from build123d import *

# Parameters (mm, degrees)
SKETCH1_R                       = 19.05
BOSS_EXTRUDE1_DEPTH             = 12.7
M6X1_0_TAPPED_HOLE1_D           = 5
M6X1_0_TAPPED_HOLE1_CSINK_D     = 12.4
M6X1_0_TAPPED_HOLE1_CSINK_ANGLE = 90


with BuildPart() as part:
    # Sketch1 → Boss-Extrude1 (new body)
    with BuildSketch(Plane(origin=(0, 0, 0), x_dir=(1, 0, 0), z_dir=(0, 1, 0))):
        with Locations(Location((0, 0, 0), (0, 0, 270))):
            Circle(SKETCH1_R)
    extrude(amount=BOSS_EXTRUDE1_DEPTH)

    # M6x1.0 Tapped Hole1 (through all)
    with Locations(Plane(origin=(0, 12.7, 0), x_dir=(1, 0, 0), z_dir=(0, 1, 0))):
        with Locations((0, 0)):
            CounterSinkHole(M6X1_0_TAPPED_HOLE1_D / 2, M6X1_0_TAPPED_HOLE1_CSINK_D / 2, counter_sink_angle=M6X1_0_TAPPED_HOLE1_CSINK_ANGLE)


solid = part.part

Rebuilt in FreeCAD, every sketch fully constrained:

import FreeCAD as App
import Part
import Sketcher

V = App.Vector
Q = App.Units.Quantity

doc = App.newDocument("Part")
params = doc.addObject("Spreadsheet::Sheet", "Params")
for row, (alias, value) in enumerate([
    ("sketch1_diameter", "1.5 in"),
    ("pad1_length", "0.5 in"),
    ("hole_diameter", "5 mm"),
    ("hole_csink_diameter", "12.4 mm"),
], start=1):
    params.set(f"A{row}", alias)
    params.set(f"B{row}", "=" + value)
    params.setAlias(f"B{row}", alias)

body = doc.addObject("PartDesign::Body", "Body")

sketch1 = body.newObject("Sketcher::SketchObject", "Sketch")
sketch1.AttachmentSupport = (doc.getObject("XZ_Plane"), [""])
sketch1.MapMode = "FlatFace"
sketch1.addGeometry(Part.Circle(V(0, 0, 0), V(0, 0, 1), 19.05), False)
sketch1.addConstraint(Sketcher.Constraint("Coincident", 0, 3, -1, 1))
sketch1.addConstraint(Sketcher.Constraint("Diameter", 0, Q("1.5 in")))
sketch1.setExpression("Constraints[1]", "Params.sketch1_diameter")
pad1 = body.newObject("PartDesign::Pad", "Pad")
pad1.Profile = sketch1
pad1.setExpression("Length", "Params.pad1_length")
pad1.Reversed = True

sketch2 = body.newObject("Sketcher::SketchObject", "Sketch001")
sketch2.AttachmentSupport = (doc.getObject("XZ_Plane"), [""])
sketch2.MapMode = "FlatFace"
sketch2.AttachmentOffset = App.Placement(V(0, 0, -0.5 * 25.4), App.Rotation())
sketch2.addGeometry(Part.Circle(V(0, 0, 0), V(0, 0, 1), 2.5), False)
sketch2.addConstraint(Sketcher.Constraint("Coincident", 0, 3, -1, 1))
sketch2.addConstraint(Sketcher.Constraint("Diameter", 0, 5.0))
doc.recompute()
hole = body.newObject("PartDesign::Hole", "Hole")
hole.Profile = sketch2
hole.ThreadType = "None"
hole.setExpression("Diameter", "Params.hole_diameter")
hole.DepthType = "ThroughAll"
hole.HoleCutType = "Countersink"
hole.setExpression("HoleCutDiameter", "Params.hole_csink_diameter")
hole.HoleCutCountersinkAngle = 90
hole.Reversed = True

doc.recompute()
